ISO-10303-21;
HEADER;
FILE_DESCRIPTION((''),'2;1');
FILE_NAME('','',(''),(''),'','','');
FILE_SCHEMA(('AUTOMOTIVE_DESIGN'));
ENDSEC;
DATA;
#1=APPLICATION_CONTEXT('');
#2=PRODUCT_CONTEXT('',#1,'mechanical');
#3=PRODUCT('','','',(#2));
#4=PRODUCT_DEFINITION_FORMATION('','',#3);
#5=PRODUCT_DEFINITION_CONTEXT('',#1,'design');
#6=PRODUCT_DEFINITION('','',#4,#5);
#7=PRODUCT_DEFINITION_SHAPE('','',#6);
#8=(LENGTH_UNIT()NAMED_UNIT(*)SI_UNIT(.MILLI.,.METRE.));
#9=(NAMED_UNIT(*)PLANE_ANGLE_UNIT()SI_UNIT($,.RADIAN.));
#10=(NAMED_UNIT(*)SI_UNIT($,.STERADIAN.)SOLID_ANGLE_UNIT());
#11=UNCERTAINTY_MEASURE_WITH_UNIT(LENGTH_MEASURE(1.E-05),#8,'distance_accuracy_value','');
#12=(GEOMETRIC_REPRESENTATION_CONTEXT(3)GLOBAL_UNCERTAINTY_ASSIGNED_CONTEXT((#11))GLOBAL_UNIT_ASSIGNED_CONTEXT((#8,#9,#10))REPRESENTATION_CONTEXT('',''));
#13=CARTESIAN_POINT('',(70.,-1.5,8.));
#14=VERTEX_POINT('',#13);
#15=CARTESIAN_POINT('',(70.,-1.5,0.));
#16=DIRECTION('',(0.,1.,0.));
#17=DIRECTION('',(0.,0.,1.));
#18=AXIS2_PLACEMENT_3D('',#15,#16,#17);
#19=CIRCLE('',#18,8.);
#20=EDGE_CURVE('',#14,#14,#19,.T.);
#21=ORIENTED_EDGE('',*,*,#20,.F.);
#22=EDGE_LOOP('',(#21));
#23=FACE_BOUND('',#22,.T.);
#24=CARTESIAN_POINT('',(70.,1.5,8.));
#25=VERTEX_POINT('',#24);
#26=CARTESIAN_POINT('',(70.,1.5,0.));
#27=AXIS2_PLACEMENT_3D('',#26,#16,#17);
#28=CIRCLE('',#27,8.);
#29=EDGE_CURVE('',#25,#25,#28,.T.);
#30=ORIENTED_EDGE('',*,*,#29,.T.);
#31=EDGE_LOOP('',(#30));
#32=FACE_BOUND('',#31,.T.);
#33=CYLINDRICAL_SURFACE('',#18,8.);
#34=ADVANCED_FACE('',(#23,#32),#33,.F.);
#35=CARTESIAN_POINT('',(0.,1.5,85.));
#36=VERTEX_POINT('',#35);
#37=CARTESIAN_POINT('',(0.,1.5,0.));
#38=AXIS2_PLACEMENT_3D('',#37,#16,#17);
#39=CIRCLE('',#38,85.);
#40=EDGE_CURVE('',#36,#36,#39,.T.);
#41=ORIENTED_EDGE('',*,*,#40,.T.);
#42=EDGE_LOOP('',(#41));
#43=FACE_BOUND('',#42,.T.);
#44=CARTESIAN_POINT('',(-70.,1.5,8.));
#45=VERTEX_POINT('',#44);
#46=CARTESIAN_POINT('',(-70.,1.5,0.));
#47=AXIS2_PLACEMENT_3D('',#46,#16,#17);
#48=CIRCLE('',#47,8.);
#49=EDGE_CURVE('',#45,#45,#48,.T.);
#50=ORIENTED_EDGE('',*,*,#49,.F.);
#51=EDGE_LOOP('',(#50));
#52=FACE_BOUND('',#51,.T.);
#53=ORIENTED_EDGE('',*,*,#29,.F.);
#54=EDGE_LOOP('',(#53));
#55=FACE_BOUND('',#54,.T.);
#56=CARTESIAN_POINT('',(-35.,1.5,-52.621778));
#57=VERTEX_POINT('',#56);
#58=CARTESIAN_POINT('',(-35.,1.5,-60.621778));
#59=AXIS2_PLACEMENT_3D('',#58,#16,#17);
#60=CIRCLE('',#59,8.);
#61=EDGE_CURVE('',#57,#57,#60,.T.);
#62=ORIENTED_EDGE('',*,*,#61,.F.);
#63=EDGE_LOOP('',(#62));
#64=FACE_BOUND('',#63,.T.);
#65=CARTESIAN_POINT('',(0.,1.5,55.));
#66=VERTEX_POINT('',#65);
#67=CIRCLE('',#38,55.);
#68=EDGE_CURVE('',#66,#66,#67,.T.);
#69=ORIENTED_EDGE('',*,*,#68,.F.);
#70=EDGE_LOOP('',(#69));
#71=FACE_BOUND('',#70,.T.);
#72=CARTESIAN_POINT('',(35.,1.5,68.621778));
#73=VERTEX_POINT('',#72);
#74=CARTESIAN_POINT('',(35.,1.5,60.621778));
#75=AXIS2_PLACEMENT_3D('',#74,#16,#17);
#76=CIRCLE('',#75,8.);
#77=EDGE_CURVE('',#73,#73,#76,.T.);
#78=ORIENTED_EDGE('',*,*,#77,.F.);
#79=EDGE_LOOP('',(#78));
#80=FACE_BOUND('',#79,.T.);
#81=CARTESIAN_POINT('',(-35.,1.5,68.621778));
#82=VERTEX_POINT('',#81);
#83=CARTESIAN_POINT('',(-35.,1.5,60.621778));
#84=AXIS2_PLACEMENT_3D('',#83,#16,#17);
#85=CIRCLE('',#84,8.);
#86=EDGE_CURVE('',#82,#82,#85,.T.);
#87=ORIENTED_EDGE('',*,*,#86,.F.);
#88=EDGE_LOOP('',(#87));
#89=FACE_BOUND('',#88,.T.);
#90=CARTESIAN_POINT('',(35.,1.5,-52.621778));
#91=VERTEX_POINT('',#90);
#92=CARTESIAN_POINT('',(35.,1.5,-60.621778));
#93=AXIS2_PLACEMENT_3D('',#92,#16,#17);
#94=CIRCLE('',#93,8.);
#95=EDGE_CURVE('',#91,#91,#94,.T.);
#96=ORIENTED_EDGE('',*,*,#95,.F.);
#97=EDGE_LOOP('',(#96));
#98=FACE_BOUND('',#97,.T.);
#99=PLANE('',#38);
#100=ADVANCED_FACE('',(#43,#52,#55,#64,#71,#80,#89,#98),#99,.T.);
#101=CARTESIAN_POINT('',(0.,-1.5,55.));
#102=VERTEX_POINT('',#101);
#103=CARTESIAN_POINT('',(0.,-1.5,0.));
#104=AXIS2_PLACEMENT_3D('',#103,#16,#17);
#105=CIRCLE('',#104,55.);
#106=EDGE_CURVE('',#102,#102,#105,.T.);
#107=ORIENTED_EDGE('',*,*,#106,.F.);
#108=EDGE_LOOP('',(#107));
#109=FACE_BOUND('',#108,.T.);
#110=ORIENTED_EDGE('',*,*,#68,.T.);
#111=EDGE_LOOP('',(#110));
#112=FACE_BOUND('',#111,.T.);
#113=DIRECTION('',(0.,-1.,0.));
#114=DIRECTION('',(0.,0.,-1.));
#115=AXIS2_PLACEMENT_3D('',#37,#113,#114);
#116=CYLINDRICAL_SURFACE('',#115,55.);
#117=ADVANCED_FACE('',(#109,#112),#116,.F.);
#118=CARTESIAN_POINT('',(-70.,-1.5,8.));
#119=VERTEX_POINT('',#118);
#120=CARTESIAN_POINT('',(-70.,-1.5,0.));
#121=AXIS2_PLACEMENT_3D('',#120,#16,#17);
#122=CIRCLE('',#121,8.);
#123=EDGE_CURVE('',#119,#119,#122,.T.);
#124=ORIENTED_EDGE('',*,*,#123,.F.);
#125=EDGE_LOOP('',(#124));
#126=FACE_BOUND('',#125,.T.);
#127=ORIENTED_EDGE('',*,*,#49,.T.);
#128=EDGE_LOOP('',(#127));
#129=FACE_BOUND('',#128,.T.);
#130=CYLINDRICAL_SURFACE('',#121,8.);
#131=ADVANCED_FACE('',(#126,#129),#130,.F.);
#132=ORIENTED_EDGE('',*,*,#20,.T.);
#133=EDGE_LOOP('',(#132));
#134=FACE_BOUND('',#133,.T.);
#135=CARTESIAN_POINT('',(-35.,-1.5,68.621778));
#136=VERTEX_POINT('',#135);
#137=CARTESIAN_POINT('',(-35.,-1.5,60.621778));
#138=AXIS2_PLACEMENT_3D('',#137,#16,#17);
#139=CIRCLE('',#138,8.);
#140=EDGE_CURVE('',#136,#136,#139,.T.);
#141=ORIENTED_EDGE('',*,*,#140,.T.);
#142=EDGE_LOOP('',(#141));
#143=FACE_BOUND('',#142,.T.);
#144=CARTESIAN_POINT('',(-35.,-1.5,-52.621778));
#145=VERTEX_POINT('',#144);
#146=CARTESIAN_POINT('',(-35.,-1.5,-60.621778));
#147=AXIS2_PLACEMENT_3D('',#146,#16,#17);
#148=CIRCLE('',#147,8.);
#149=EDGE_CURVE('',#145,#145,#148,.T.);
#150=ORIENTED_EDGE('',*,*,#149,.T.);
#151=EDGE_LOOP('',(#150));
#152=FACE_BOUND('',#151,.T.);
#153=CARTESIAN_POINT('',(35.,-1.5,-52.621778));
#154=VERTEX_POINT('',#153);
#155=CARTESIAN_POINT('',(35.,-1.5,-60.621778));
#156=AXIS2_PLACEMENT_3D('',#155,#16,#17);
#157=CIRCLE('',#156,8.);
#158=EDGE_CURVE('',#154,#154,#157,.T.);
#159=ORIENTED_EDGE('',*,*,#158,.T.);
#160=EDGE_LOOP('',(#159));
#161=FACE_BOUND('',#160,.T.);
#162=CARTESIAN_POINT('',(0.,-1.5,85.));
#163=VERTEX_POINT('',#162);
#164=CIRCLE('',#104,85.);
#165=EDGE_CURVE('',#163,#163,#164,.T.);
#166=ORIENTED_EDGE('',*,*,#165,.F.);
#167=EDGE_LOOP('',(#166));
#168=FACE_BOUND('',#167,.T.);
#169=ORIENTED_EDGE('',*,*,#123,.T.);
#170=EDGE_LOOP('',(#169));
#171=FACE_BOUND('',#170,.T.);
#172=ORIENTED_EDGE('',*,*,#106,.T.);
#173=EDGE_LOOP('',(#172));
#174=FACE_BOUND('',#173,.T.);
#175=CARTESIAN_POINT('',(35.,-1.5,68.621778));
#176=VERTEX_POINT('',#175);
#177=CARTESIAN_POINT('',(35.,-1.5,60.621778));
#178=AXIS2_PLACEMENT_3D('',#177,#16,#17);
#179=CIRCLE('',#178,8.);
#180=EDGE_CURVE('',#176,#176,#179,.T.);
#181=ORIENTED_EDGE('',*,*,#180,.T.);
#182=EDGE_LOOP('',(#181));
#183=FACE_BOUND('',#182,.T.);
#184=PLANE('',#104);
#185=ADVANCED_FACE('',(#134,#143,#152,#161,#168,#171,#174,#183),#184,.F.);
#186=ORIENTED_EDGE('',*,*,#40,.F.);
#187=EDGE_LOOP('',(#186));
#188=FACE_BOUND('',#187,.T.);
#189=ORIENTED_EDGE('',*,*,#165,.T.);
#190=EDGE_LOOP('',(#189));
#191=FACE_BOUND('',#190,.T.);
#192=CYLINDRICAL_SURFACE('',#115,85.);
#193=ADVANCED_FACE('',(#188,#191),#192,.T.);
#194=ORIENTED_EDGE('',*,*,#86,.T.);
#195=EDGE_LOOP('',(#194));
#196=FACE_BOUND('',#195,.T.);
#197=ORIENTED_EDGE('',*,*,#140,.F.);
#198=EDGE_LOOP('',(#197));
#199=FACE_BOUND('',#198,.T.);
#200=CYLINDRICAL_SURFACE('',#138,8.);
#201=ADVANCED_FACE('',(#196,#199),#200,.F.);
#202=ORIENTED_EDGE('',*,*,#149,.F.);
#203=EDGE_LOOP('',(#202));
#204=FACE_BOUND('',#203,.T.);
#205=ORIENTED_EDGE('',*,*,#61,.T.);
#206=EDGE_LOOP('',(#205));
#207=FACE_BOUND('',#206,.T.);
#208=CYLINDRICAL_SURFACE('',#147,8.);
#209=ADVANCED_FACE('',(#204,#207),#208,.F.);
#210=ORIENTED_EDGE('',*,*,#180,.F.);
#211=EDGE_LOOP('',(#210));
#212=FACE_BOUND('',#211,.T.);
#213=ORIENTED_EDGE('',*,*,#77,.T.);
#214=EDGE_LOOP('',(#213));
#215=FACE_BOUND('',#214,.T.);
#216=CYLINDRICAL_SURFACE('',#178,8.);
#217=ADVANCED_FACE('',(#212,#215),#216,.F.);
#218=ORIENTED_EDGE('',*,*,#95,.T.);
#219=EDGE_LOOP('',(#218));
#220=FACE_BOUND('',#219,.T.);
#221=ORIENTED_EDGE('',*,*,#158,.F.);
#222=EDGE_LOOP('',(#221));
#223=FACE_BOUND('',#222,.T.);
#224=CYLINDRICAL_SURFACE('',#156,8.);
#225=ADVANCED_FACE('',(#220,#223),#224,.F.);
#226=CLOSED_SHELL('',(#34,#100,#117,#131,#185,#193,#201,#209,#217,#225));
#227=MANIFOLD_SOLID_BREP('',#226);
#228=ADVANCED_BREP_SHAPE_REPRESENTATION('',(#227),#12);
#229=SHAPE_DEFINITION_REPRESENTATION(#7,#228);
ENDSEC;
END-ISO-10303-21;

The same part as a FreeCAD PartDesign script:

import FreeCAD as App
import Part
import Sketcher

V = App.Vector

doc = App.newDocument("Part")
body = doc.addObject("PartDesign::Body", "Body")

# Sketch on XZ plane
sketch1 = doc.addObject("Sketcher::SketchObject", "Sketch")
body.addObject(sketch1)
sketch1.AttachmentSupport = (doc.XZ_Plane, [""])
sketch1.MapMode = "FlatFace"
sketch1.addGeometry(Part.Circle(V(0, 0, 0), V(0, 0, 1), 85), False)
sketch1.addGeometry(Part.Circle(V(0, 0, 0), V(0, 0, 1), 55), False)
sketch1.addConstraint(Sketcher.Constraint("Coincident", 0, 3, -1, 1))
sketch1.addConstraint(Sketcher.Constraint("Coincident", 1, 3, -1, 1))
sketch1.addConstraint(Sketcher.Constraint("Diameter", 0, 170.0))
sketch1.addConstraint(Sketcher.Constraint("Diameter", 1, 110.0))
pad1 = doc.addObject("PartDesign::Pad", "Pad")
body.addObject(pad1)
pad1.Profile = sketch1
pad1.Length = 3
pad1.Midplane = True

# Sketch on XZ plane
sketch2 = doc.addObject("Sketcher::SketchObject", "Sketch001")
body.addObject(sketch2)
sketch2.AttachmentSupport = (doc.XZ_Plane, [""])
sketch2.MapMode = "FlatFace"
sketch2.AttachmentOffset = App.Placement(V(0, 0, -1.5), App.Rotation())
sketch2.addGeometry(Part.Circle(V(70, 0, 0), V(0, 0, 1), 8), False)
sketch2.addGeometry(Part.Circle(V(35, 61, 0), V(0, 0, 1), 8), False)
sketch2.addGeometry(Part.Circle(V(-35, 61, 0), V(0, 0, 1), 8), False)
sketch2.addGeometry(Part.Circle(V(-70, 0, 0), V(0, 0, 1), 8), False)
sketch2.addGeometry(Part.Circle(V(-35, -61, 0), V(0, 0, 1), 8), False)
sketch2.addGeometry(Part.Circle(V(35, -61, 0), V(0, 0, 1), 8), False)
sketch2.addConstraint(Sketcher.Constraint("Equal", 0, 1))
sketch2.addConstraint(Sketcher.Constraint("Equal", 1, 2))
sketch2.addConstraint(Sketcher.Constraint("Equal", 2, 3))
sketch2.addConstraint(Sketcher.Constraint("Equal", 3, 4))
sketch2.addConstraint(Sketcher.Constraint("Equal", 4, 5))
sketch2.addConstraint(Sketcher.Constraint("Symmetric", 0, 3, 3, 3, -1, 1))
sketch2.addConstraint(Sketcher.Constraint("Symmetric", 1, 3, 4, 3, -1, 1))
sketch2.addConstraint(Sketcher.Constraint("Symmetric", 2, 3, 5, 3, -1, 1))
sketch2.addConstraint(Sketcher.Constraint("Symmetric", 1, 3, 2, 3, -2))
sketch2.addConstraint(Sketcher.Constraint("PointOnObject", 0, 3, -1))
sketch2.addConstraint(Sketcher.Constraint("Diameter", 0, 16.0))
sketch2.addConstraint(Sketcher.Constraint("DistanceX", -1, 1, 0, 3, 70.0))
sketch2.addConstraint(Sketcher.Constraint("DistanceX", -1, 1, 1, 3, 35.0))
sketch2.addConstraint(Sketcher.Constraint("DistanceY", -1, 1, 1, 3, 60.621778))
pocket1 = doc.addObject("PartDesign::Pocket", "Pocket")
body.addObject(pocket1)
pocket1.Profile = sketch2
pocket1.Type = "ThroughAll"
pocket1.Midplane = True

doc.recompute()
